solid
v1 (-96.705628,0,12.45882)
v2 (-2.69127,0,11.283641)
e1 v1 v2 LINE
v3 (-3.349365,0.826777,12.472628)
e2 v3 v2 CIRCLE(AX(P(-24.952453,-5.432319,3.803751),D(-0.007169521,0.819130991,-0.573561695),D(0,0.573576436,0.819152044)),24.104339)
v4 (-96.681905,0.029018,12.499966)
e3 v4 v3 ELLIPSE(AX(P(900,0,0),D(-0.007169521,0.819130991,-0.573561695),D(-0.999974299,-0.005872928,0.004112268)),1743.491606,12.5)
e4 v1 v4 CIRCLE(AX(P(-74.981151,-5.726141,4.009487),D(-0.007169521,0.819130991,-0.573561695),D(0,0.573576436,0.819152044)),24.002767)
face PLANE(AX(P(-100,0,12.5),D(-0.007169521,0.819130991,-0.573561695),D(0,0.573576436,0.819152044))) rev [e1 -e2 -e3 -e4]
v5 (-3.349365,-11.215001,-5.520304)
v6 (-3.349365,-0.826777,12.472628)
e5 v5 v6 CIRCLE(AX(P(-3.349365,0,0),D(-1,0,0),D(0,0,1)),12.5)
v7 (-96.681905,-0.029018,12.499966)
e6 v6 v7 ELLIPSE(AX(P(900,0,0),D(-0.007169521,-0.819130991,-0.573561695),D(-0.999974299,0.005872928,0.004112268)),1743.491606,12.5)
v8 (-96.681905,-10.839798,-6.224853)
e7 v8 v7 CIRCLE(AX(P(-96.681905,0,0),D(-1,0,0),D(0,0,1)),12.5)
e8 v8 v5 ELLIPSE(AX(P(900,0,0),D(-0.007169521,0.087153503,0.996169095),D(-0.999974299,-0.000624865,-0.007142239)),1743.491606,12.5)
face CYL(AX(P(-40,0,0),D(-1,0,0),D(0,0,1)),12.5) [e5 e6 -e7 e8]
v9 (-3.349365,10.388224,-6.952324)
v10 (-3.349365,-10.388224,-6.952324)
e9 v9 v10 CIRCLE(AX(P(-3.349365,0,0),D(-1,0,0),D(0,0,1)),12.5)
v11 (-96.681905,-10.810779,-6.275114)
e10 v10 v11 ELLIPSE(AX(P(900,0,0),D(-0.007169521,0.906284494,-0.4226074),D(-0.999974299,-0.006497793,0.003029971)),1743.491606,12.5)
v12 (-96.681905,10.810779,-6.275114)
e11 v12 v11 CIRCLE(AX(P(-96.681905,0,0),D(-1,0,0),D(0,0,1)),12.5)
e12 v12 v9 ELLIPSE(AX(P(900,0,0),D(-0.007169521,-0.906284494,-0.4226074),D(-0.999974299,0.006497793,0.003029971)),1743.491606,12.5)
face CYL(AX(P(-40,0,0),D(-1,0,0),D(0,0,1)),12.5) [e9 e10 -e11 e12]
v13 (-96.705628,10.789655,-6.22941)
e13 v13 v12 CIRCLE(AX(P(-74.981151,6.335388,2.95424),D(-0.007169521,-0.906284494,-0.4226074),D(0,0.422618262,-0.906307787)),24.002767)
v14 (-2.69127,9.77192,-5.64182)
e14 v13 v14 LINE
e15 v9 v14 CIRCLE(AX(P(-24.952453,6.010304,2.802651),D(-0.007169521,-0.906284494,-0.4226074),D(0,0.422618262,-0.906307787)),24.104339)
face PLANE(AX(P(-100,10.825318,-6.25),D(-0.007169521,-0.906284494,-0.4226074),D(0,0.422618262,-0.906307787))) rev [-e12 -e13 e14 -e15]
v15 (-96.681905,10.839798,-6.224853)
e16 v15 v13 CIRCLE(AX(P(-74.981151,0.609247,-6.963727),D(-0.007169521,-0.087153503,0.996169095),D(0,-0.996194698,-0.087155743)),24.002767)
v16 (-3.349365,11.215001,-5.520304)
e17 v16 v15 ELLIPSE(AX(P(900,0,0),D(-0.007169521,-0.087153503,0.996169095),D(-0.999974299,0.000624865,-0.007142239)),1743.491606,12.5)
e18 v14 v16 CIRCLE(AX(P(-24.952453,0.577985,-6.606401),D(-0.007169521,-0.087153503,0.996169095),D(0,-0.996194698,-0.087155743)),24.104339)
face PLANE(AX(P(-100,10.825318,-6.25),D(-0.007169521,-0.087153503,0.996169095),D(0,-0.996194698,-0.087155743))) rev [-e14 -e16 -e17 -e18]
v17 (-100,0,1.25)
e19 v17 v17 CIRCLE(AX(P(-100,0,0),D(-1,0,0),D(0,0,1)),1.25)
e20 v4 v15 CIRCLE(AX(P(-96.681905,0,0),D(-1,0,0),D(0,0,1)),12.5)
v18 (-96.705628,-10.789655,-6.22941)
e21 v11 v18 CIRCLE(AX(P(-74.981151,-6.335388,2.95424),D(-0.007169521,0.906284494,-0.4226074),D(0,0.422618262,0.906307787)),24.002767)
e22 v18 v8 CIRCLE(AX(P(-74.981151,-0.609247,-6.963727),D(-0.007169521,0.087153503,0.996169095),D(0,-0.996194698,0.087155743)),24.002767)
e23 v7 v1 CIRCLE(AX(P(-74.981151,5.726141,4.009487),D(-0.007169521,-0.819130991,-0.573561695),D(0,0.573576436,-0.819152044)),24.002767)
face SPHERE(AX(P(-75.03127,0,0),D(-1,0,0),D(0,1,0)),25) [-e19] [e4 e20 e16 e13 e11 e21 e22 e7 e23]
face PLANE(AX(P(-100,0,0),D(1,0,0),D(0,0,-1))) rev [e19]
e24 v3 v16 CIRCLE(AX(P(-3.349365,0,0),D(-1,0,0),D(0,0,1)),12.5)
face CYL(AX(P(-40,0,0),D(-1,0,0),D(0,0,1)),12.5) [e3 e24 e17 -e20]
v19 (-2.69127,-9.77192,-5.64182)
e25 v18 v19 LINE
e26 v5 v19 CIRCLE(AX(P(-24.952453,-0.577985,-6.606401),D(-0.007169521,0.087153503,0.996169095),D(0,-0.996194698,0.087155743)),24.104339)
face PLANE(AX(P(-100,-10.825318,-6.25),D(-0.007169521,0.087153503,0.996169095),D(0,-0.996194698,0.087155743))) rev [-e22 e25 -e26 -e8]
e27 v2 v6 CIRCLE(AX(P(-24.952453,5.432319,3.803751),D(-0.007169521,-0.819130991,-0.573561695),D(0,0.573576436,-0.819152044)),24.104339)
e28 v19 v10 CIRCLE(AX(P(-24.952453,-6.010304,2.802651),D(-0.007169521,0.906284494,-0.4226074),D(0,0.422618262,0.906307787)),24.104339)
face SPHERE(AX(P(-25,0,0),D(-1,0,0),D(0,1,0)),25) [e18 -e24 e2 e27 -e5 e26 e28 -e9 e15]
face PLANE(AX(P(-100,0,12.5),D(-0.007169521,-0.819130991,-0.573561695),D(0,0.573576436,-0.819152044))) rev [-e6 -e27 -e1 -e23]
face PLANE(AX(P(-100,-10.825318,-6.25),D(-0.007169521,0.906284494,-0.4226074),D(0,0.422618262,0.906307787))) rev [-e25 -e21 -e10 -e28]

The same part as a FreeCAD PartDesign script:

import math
import FreeCAD as App
import Part
import Sketcher
Q = App.Units.Quantity

doc = App.newDocument("Part")
params = doc.addObject("Spreadsheet::Sheet", "Params")
for row, (alias, value) in enumerate([
    ("sketch1_radius", "25 mm"),
    ("sketch1_width", "100 mm"),
    ("sketch1_height", "1.25 mm"),
    ("revolution_angle", "360 deg"),
], start=1):
    params.set(f"A{row}", alias)
    params.set(f"B{row}", "=" + value)
    params.setAlias(f"B{row}", alias)

body = doc.addObject("PartDesign::Body", "Body")

# Sketch on XY plane
sketch1 = body.newObject("Sketcher::SketchObject", "Sketch")
sketch1.AttachmentSupport = (doc.getObject("XY_Plane"), [""])
sketch1.MapMode = "FlatFace"
sketch1.addGeometry([
    Part.LineSegment(App.Vector(-100, 1.2, 0), App.Vector(-100, 0, 0)),  # 0
    Part.LineSegment(App.Vector(-100, 0, 0), App.Vector(0, 0, 0)),  # 1
    Part.ArcOfCircle(Part.Circle(App.Vector(-25, 0, 0), App.Vector(0, 0, 1), 25), math.radians(0), math.radians(30)),  # 2
    Part.LineSegment(App.Vector(-3.3, 12.5, 0), App.Vector(-96.7, 12.5, 0)),  # 3
    Part.ArcOfCircle(Part.Circle(App.Vector(-75, 0, 0), App.Vector(0, 0, 1), 25), math.radians(150), math.radians(177)),  # 4
], False)
sketch1.addConstraint([
    Sketcher.Constraint("Coincident", 0, 2, 1, 1),
    Sketcher.Constraint("Coincident", 1, 2, 2, 1),
    Sketcher.Constraint("Coincident", 2, 2, 3, 1),
    Sketcher.Constraint("Coincident", 3, 2, 4, 1),
    Sketcher.Constraint("Coincident", 4, 2, 0, 1),
    Sketcher.Constraint("Vertical", 0),
    Sketcher.Constraint("Horizontal", 1),
    Sketcher.Constraint("Horizontal", 3),
    Sketcher.Constraint("Coincident", 1, 2, -1, 1),
    Sketcher.Constraint("Equal", 2, 4),
    Sketcher.Constraint("PointOnObject", 2, 3, -1),
    Sketcher.Constraint("PointOnObject", 4, 3, -1),
    Sketcher.Constraint("Radius", 2, Q("25 mm")),
    Sketcher.Constraint("DistanceX", 1, 1, 1, 2, Q("100 mm")),
    Sketcher.Constraint("DistanceY", 0, 2, 0, 1, Q("1.25 mm")),
    Sketcher.Constraint("DistanceY", -1, 1, 2, 2, Q("12.5 mm")),
])
sketch1.setExpression("Constraints[12]", "Params.sketch1_radius")
sketch1.setExpression("Constraints[13]", "Params.sketch1_width")
sketch1.setExpression("Constraints[14]", "Params.sketch1_height")
revolution = body.newObject("PartDesign::Revolution", "Revolution")
revolution.Profile = sketch1
revolution.ReferenceAxis = (sketch1, ["H_Axis"])
revolution.setExpression("Angle", "Params.revolution_angle")

# Sketch on YZ plane
sketch2 = body.newObject("Sketcher::SketchObject", "Sketch001")
sketch2.AttachmentSupport = (doc.getObject("YZ_Plane"), [""])
sketch2.MapMode = "FlatFace"
sketch2.addGeometry([
    Part.LineSegment(App.Vector(0, 11.2, 0), App.Vector(0.9, 12.5, 0)),
    Part.LineSegment(App.Vector(0.9, 12.5, 0), App.Vector(-0.9, 12.5, 0)),
    Part.LineSegment(App.Vector(-0.9, 12.5, 0), App.Vector(0, 11.2, 0)),
], False)
sketch2.addConstraint([
    Sketcher.Constraint("Coincident", 0, 2, 1, 1),
    Sketcher.Constraint("Coincident", 1, 2, 2, 1),
    Sketcher.Constraint("Coincident", 2, 2, 0, 1),
    Sketcher.Constraint("Horizontal", 1),
    Sketcher.Constraint("PointOnObject", 2, 2, -2),
    Sketcher.Constraint("Equal", 0, 2),
    Sketcher.Constraint("Angle", 0, Q("55 deg")),
    Sketcher.Constraint("DistanceY", -1, 1, 0, 2, Q("12.5 mm")),
    Sketcher.Constraint("DistanceY", -1, 1, 2, 2, Q("11.25 mm")),
])

# Sketch on an angled plane
sketch3 = body.newObject("Sketcher::SketchObject", "Sketch002")
sketch3.Placement = App.Placement(App.Vector(0.140603, 0, 11.248242), App.Rotation(App.Vector(-0.999921884, 0, 0.012499024), App.Vector(0, 1, 0), App.Vector(-0.012499024, 0, -0.999921884), "ZXY"))
sketch3.addGeometry(Part.LineSegment(App.Vector(0, 0, 0), App.Vector(100, 0, 0)), False)
sketch3.addConstraint([
    Sketcher.Constraint("Horizontal", 0),
    Sketcher.Constraint("PointOnObject", 0, 1, -1),
    Sketcher.Constraint("DistanceX", 0, 1, 0, 2, Q("100.007812 mm")),
    Sketcher.Constraint("DistanceX", -1, 1, 0, 1, Q("0.140614 mm")),
])
doc.recompute()

subtractivepipe = body.newObject("PartDesign::SubtractivePipe", "SubtractivePipe")
subtractivepipe.Profile = sketch2
subtractivepipe.Spine = (sketch3, ["Edge1"])
doc.recompute()

polarpattern = body.newObject("PartDesign::PolarPattern", "PolarPattern")
polarpattern.Originals = [subtractivepipe]
polarpattern.Axis = (doc.getObject("X_Axis"), [""])
polarpattern.Angle = 360
polarpattern.Occurrences = 3
body.Tip = polarpattern

doc.recompute()
